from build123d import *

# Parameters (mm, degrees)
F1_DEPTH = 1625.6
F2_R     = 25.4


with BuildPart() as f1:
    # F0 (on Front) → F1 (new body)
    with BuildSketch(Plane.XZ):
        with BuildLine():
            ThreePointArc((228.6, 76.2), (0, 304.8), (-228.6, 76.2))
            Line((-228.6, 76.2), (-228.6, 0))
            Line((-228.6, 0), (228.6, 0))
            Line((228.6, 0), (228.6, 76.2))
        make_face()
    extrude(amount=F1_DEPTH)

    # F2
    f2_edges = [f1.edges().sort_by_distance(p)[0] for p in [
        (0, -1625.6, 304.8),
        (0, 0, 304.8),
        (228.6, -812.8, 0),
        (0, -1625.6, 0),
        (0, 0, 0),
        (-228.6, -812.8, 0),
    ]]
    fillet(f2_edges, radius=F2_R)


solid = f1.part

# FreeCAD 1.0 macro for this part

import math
import FreeCAD as App
import Part
import Sketcher
Q = App.Units.Quantity


def edges_at(feature, points):
    """Names of the edges that pass closest to the given points."""
    edges = feature.Shape.Edges
    near = lambda p: min(range(len(edges)), key=lambda i: edges[i].distToShape(Part.Vertex(*p))[0])
    return sorted({f"Edge{near(p) + 1}" for p in points})

doc = App.newDocument("Part")
body = doc.addObject("PartDesign::Body", "Body")

# Sketch on XZ plane
sketch1 = body.newObject("Sketcher::SketchObject", "Sketch")
sketch1.AttachmentSupport = (doc.getObject("XZ_Plane"), [""])
sketch1.MapMode = "FlatFace"
sketch1.addGeometry(Part.ArcOfCircle(Part.Circle(App.Vector(0, 76, 0), App.Vector(0, 0, 1), 229), math.radians(0), math.radians(180)), False)
sketch1.addGeometry(Part.LineSegment(App.Vector(-229, 76, 0), App.Vector(-229, 0, 0)), False)
sketch1.addGeometry(Part.LineSegment(App.Vector(-229, 0, 0), App.Vector(229, 0, 0)), False)
sketch1.addGeometry(Part.LineSegment(App.Vector(229, 0, 0), App.Vector(229, 76, 0)), False)
sketch1.addConstraint(Sketcher.Constraint("Tangent", 0, 2, 1, 1))
sketch1.addConstraint(Sketcher.Constraint("Coincident", 1, 2, 2, 1))
sketch1.addConstraint(Sketcher.Constraint("Coincident", 2, 2, 3, 1))
sketch1.addConstraint(Sketcher.Constraint("Tangent", 3, 2, 0, 1))
sketch1.addConstraint(Sketcher.Constraint("Vertical", 1))
sketch1.addConstraint(Sketcher.Constraint("Horizontal", 2))
sketch1.addConstraint(Sketcher.Constraint("Vertical", 3))
sketch1.addConstraint(Sketcher.Constraint("Symmetric", 1, 2, 2, 2, -1, 1))
sketch1.addConstraint(Sketcher.Constraint("Radius", 0, Q("9 in")))
sketch1.addConstraint(Sketcher.Constraint("DistanceY", 1, 2, 1, 1, Q("3 in")))
pad1 = body.newObject("PartDesign::Pad", "Pad")
pad1.Profile = sketch1
pad1.Length = Q("64 in")
doc.recompute()

fillet = body.newObject("PartDesign::Fillet", "Fillet")
fillet.Base = (pad1, edges_at(pad1, [
    (0, -1625.6, 304.8),
    (0, 0, 304.8),
    (228.6, -812.8, 0),
    (0, -1625.6, 0),
    (0, 0, 0),
    (-228.6, -812.8, 0),
]))
fillet.Radius = Q("1 in")

doc.recompute()
